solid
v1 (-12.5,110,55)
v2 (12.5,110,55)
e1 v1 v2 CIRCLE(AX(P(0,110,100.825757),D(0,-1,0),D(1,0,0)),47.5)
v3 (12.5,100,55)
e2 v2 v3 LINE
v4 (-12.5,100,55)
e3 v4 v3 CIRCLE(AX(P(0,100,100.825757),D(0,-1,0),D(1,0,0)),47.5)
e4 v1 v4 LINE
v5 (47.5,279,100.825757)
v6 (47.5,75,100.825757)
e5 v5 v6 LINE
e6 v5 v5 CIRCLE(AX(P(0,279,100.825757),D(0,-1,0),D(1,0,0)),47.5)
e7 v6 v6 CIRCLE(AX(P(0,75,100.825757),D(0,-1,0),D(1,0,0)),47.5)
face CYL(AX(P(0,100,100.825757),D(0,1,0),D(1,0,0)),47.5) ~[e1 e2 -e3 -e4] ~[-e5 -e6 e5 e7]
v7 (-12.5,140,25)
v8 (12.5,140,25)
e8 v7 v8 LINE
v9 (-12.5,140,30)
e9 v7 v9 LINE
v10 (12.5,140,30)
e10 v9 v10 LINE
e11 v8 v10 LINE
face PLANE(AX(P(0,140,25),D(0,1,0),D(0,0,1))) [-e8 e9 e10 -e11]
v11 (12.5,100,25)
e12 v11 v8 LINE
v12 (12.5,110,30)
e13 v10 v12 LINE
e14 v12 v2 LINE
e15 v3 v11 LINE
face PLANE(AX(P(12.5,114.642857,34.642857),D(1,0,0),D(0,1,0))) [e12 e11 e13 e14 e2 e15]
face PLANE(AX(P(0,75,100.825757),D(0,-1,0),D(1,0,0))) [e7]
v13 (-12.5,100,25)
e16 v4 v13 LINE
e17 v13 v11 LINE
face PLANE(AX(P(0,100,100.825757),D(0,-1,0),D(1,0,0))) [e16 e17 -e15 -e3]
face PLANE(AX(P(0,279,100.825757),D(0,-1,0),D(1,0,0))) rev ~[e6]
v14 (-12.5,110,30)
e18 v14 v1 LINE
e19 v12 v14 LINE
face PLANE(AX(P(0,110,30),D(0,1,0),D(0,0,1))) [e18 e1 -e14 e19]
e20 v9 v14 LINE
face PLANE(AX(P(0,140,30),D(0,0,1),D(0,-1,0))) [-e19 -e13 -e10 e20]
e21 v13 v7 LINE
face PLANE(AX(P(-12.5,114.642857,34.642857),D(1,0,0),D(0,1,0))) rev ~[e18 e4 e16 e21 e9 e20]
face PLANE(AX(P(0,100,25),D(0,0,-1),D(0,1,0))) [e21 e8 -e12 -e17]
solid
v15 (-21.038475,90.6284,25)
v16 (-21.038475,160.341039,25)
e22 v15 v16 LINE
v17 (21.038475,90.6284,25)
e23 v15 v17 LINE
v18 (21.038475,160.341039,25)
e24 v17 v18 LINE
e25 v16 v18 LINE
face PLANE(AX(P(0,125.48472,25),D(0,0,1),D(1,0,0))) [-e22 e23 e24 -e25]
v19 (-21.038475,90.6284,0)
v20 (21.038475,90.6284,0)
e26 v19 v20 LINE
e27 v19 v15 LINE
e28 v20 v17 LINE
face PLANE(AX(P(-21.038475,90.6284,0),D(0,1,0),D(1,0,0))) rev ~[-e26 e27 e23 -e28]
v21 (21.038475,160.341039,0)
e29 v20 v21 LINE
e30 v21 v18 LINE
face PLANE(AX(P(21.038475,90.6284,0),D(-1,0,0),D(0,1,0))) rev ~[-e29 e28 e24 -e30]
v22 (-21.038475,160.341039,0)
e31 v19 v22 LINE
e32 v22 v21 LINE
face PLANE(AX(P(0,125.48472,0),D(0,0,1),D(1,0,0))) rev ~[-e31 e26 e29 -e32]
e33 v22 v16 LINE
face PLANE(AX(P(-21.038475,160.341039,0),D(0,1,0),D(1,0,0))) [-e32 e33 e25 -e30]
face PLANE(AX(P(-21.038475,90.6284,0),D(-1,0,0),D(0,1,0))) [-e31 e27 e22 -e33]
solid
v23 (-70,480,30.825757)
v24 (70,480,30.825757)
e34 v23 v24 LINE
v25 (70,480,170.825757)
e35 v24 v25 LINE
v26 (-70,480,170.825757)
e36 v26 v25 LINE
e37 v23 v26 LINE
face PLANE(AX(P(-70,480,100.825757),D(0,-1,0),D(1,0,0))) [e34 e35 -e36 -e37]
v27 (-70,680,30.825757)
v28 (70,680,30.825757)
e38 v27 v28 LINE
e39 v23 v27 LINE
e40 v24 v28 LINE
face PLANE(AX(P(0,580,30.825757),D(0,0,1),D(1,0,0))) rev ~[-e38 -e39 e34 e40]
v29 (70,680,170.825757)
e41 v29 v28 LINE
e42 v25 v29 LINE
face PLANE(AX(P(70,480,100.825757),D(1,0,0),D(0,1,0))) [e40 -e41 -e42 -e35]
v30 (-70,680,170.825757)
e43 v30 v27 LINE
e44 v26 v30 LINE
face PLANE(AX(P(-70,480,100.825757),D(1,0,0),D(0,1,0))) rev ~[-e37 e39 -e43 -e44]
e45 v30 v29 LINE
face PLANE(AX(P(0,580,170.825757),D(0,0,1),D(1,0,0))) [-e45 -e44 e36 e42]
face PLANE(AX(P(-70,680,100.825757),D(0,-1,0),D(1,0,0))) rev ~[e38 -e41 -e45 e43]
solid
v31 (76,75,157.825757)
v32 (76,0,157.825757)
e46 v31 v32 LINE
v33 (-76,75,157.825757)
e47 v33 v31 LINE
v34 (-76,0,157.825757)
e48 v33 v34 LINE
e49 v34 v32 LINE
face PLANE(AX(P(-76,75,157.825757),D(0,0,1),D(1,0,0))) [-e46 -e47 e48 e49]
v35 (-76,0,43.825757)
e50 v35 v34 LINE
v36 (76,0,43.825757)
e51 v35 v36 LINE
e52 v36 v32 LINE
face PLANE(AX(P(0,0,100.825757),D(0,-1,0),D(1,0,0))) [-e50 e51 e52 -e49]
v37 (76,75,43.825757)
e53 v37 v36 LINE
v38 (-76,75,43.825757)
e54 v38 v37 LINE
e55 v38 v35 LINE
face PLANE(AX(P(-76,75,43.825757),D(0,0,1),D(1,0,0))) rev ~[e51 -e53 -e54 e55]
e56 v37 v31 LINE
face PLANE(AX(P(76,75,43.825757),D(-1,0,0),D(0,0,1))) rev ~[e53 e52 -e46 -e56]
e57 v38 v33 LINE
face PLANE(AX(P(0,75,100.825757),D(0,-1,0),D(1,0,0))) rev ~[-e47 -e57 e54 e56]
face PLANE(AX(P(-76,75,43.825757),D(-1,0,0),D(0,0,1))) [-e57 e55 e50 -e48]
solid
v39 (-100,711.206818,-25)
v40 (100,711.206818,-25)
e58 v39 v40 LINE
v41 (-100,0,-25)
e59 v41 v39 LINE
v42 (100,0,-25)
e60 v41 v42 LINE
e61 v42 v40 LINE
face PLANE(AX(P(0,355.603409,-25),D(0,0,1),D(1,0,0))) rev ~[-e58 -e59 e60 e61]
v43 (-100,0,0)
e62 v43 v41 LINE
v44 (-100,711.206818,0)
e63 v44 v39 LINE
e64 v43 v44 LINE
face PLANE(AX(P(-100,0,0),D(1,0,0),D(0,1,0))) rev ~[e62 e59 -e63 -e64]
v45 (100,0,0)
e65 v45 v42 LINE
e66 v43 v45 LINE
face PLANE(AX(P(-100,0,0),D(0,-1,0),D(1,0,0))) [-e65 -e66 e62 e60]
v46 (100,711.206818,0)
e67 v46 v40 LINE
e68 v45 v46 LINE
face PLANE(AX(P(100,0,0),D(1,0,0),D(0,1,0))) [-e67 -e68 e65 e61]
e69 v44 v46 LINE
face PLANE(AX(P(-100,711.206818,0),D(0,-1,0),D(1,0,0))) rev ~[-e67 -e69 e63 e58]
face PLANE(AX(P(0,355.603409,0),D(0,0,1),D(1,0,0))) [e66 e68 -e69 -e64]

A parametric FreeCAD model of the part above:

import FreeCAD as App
import Part
import Sketcher
from FreeCAD import Vector
Q = App.Units.Quantity

doc = App.newDocument("Part")
body = doc.addObject("PartDesign::Body", "Body")

# Sketch on XY plane
sketch1 = body.newObject("Sketcher::SketchObject", "Sketch")
sketch1.AttachmentSupport = (doc.getObject("XY_Plane"), [""])
sketch1.MapMode = "FlatFace"
sketch1.addGeometry(Part.LineSegment(Vector(-100, 711.206818, 0), Vector(-100, 0, 0)), False)
sketch1.addGeometry(Part.LineSegment(Vector(-100, 0, 0), Vector(100, 0, 0)), False)
sketch1.addGeometry(Part.LineSegment(Vector(100, 0, 0), Vector(100, 711.206818, 0)), False)
sketch1.addGeometry(Part.LineSegment(Vector(100, 711.206818, 0), Vector(-100, 711.206818, 0)), False)
sketch1.addConstraint(Sketcher.Constraint("Coincident", 0, 2, 1, 1))
sketch1.addConstraint(Sketcher.Constraint("Coincident", 1, 2, 2, 1))
sketch1.addConstraint(Sketcher.Constraint("Coincident", 2, 2, 3, 1))
sketch1.addConstraint(Sketcher.Constraint("Coincident", 3, 2, 0, 1))
sketch1.addConstraint(Sketcher.Constraint("Vertical", 0))
sketch1.addConstraint(Sketcher.Constraint("Horizontal", 1))
sketch1.addConstraint(Sketcher.Constraint("Vertical", 2))
sketch1.addConstraint(Sketcher.Constraint("Horizontal", 3))
sketch1.addConstraint(Sketcher.Constraint("Symmetric", 0, 2, 1, 2, -1, 1))
sketch1.addConstraint(Sketcher.Constraint("DistanceX", 1, 1, 1, 2, Q("200 mm")))
sketch1.addConstraint(Sketcher.Constraint("DistanceY", 0, 2, 0, 1, Q("711.206818 mm")))
pad1 = body.newObject("PartDesign::Pad", "Pad")
pad1.Profile = sketch1
pad1.Length = 25
pad1.Reversed = True
body2 = doc.addObject("PartDesign::Body", "Body001")

# Sketch on YZ plane
sketch2 = body2.newObject("Sketcher::SketchObject", "Sketch001")
sketch2.AttachmentSupport = (doc.getObject("YZ_Plane001"), [""])
sketch2.MapMode = "FlatFace"
sketch2.addGeometry(Part.LineSegment(Vector(100, 55, 0), Vector(100, 25, 0)), False)
sketch2.addGeometry(Part.LineSegment(Vector(100, 25, 0), Vector(140, 25, 0)), False)
sketch2.addGeometry(Part.LineSegment(Vector(140, 25, 0), Vector(140, 30, 0)), False)
sketch2.addGeometry(Part.LineSegment(Vector(140, 30, 0), Vector(110, 30, 0)), False)
sketch2.addGeometry(Part.LineSegment(Vector(110, 30, 0), Vector(110, 55, 0)), False)
sketch2.addGeometry(Part.LineSegment(Vector(110, 55, 0), Vector(100, 55, 0)), False)
sketch2.addConstraint(Sketcher.Constraint("Coincident", 0, 2, 1, 1))
sketch2.addConstraint(Sketcher.Constraint("Coincident", 1, 2, 2, 1))
sketch2.addConstraint(Sketcher.Constraint("Coincident", 2, 2, 3, 1))
sketch2.addConstraint(Sketcher.Constraint("Coincident", 3, 2, 4, 1))
sketch2.addConstraint(Sketcher.Constraint("Coincident", 4, 2, 5, 1))
sketch2.addConstraint(Sketcher.Constraint("Coincident", 5, 2, 0, 1))
sketch2.addConstraint(Sketcher.Constraint("Vertical", 0))
sketch2.addConstraint(Sketcher.Constraint("Horizontal", 1))
sketch2.addConstraint(Sketcher.Constraint("Vertical", 2))
sketch2.addConstraint(Sketcher.Constraint("Horizontal", 3))
sketch2.addConstraint(Sketcher.Constraint("Vertical", 4))
sketch2.addConstraint(Sketcher.Constraint("Horizontal", 5))
sketch2.addConstraint(Sketcher.Constraint("Equal", 3, 0))
sketch2.addConstraint(Sketcher.Constraint("DistanceX", 1, 1, 1, 2, Q("40 mm")))
sketch2.addConstraint(Sketcher.Constraint("DistanceX", 3, 2, 3, 1, Q("30 mm")))
sketch2.addConstraint(Sketcher.Constraint("DistanceY", 2, 1, 2, 2, Q("5 mm")))
sketch2.addConstraint(Sketcher.Constraint("DistanceX", -1, 1, 0, 2, Q("100 mm")))
sketch2.addConstraint(Sketcher.Constraint("DistanceY", -1, 1, 0, 2, Q("25 mm")))
pad2 = body2.newObject("PartDesign::Pad", "Pad001")
pad2.Profile = sketch2
pad2.Length = 25
pad2.Midplane = True

# Sketch on XZ plane
sketch3 = body2.newObject("Sketcher::SketchObject", "Sketch002")
sketch3.AttachmentSupport = (doc.getObject("XZ_Plane001"), [""])
sketch3.MapMode = "FlatFace"
sketch3.AttachmentOffset = App.Placement(Vector(0, 0, -100), App.Rotation())
sketch3.addGeometry(Part.Circle(Vector(0, 100.825757, 0), Vector(0, 0, 1), 47.5), False)
sketch3.addConstraint(Sketcher.Constraint("PointOnObject", 0, 3, -2))
sketch3.addConstraint(Sketcher.Constraint("Diameter", 0, Q("95 mm")))
sketch3.addConstraint(Sketcher.Constraint("DistanceY", -1, 1, 0, 3, Q("100.825757 mm")))
pad3 = body2.newObject("PartDesign::Pad", "Pad002")
pad3.Profile = sketch3
pad3.Type = "TwoLengths"
pad3.Length = 179
pad3.Length2 = 25
pad3.Reversed = True
body3 = doc.addObject("PartDesign::Body", "Body002")

# Sketch on XZ plane
sketch4 = body3.newObject("Sketcher::SketchObject", "Sketch003")
sketch4.AttachmentSupport = (doc.getObject("XZ_Plane002"), [""])
sketch4.MapMode = "FlatFace"
sketch4.AttachmentOffset = App.Placement(Vector(0, 0, -75), App.Rotation())
sketch4.addGeometry(Part.LineSegment(Vector(-76, 157.825757, 0), Vector(-76, 43.825757, 0)), False)
sketch4.addGeometry(Part.LineSegment(Vector(-76, 43.825757, 0), Vector(76, 43.825757, 0)), False)
sketch4.addGeometry(Part.LineSegment(Vector(76, 43.825757, 0), Vector(76, 157.825757, 0)), False)
sketch4.addGeometry(Part.LineSegment(Vector(76, 157.825757, 0), Vector(-76, 157.825757, 0)), False)
sketch4.addConstraint(Sketcher.Constraint("Coincident", 0, 2, 1, 1))
sketch4.addConstraint(Sketcher.Constraint("Coincident", 1, 2, 2, 1))
sketch4.addConstraint(Sketcher.Constraint("Coincident", 2, 2, 3, 1))
sketch4.addConstraint(Sketcher.Constraint("Coincident", 3, 2, 0, 1))
sketch4.addConstraint(Sketcher.Constraint("Vertical", 0))
sketch4.addConstraint(Sketcher.Constraint("Horizontal", 1))
sketch4.addConstraint(Sketcher.Constraint("Vertical", 2))
sketch4.addConstraint(Sketcher.Constraint("Horizontal", 3))
sketch4.addConstraint(Sketcher.Constraint("DistanceX", 1, 1, 1, 2, Q("152 mm")))
sketch4.addConstraint(Sketcher.Constraint("DistanceY", 0, 2, 0, 1, Q("114 mm")))
sketch4.addConstraint(Sketcher.Constraint("DistanceX", 0, 2, -1, 1, Q("76 mm")))
sketch4.addConstraint(Sketcher.Constraint("DistanceY", -1, 1, 0, 2, Q("43.825757 mm")))
pad4 = body3.newObject("PartDesign::Pad", "Pad003")
pad4.Profile = sketch4
pad4.Length = 75
body4 = doc.addObject("PartDesign::Body", "Body003")

# Sketch on XY plane
sketch5 = body4.newObject("Sketcher::SketchObject", "Sketch004")
sketch5.AttachmentSupport = (doc.getObject("XY_Plane003"), [""])
sketch5.MapMode = "FlatFace"
sketch5.addGeometry(Part.LineSegment(Vector(-21.038475, 160.341039, 0), Vector(-21.038475, 90.6284, 0)), False)
sketch5.addGeometry(Part.LineSegment(Vector(-21.038475, 90.6284, 0), Vector(21.038475, 90.6284, 0)), False)
sketch5.addGeometry(Part.LineSegment(Vector(21.038475, 90.6284, 0), Vector(21.038475, 160.341039, 0)), False)
sketch5.addGeometry(Part.LineSegment(Vector(21.038475, 160.341039, 0), Vector(-21.038475, 160.341039, 0)), False)
sketch5.addConstraint(Sketcher.Constraint("Coincident", 0, 2, 1, 1))
sketch5.addConstraint(Sketcher.Constraint("Coincident", 1, 2, 2, 1))
sketch5.addConstraint(Sketcher.Constraint("Coincident", 2, 2, 3, 1))
sketch5.addConstraint(Sketcher.Constraint("Coincident", 3, 2, 0, 1))
sketch5.addConstraint(Sketcher.Constraint("Vertical", 0))
sketch5.addConstraint(Sketcher.Constraint("Horizontal", 1))
sketch5.addConstraint(Sketcher.Constraint("Vertical", 2))
sketch5.addConstraint(Sketcher.Constraint("Horizontal", 3))
sketch5.addConstraint(Sketcher.Constraint("DistanceX", 1, 1, 1, 2, Q("42.076949 mm")))
sketch5.addConstraint(Sketcher.Constraint("DistanceY", 0, 2, 0, 1, Q("69.712639 mm")))
sketch5.addConstraint(Sketcher.Constraint("DistanceY", -1, 1, 0, 2, Q("90.6284 mm")))
sketch5.addConstraint(Sketcher.Constraint("DistanceX", 0, 2, -1, 1, Q("21.038475 mm")))
pad5 = body4.newObject("PartDesign::Pad", "Pad004")
pad5.Profile = sketch5
pad5.Length = 25
body5 = doc.addObject("PartDesign::Body", "Body004")

# Sketch on XY plane
sketch6 = body5.newObject("Sketcher::SketchObject", "Sketch005")
sketch6.AttachmentSupport = (doc.getObject("XY_Plane004"), [""])
sketch6.MapMode = "FlatFace"
sketch6.AttachmentOffset = App.Placement(Vector(0, 0, 100.825757), App.Rotation())
sketch6.addGeometry(Part.LineSegment(Vector(-70, 680, 0), Vector(-70, 480, 0)), False)
sketch6.addGeometry(Part.LineSegment(Vector(-70, 480, 0), Vector(70, 480, 0)), False)
sketch6.addGeometry(Part.LineSegment(Vector(70, 480, 0), Vector(70, 680, 0)), False)
sketch6.addGeometry(Part.LineSegment(Vector(70, 680, 0), Vector(-70, 680, 0)), False)
sketch6.addConstraint(Sketcher.Constraint("Coincident", 0, 2, 1, 1))
sketch6.addConstraint(Sketcher.Constraint("Coincident", 1, 2, 2, 1))
sketch6.addConstraint(Sketcher.Constraint("Coincident", 2, 2, 3, 1))
sketch6.addConstraint(Sketcher.Constraint("Coincident", 3, 2, 0, 1))
sketch6.addConstraint(Sketcher.Constraint("Vertical", 0))
sketch6.addConstraint(Sketcher.Constraint("Horizontal", 1))
sketch6.addConstraint(Sketcher.Constraint("Vertical", 2))
sketch6.addConstraint(Sketcher.Constraint("Horizontal", 3))
sketch6.addConstraint(Sketcher.Constraint("DistanceX", 1, 1, 1, 2, Q("140 mm")))
sketch6.addConstraint(Sketcher.Constraint("DistanceY", 0, 2, 0, 1, Q("200 mm")))
sketch6.addConstraint(Sketcher.Constraint("DistanceX", 0, 2, -1, 1, Q("70 mm")))
sketch6.addConstraint(Sketcher.Constraint("DistanceY", -1, 1, 0, 2, Q("480 mm")))
pad6 = body5.newObject("PartDesign::Pad", "Pad005")
pad6.Profile = sketch6
pad6.Length = 140
pad6.Midplane = True

doc.recompute()
